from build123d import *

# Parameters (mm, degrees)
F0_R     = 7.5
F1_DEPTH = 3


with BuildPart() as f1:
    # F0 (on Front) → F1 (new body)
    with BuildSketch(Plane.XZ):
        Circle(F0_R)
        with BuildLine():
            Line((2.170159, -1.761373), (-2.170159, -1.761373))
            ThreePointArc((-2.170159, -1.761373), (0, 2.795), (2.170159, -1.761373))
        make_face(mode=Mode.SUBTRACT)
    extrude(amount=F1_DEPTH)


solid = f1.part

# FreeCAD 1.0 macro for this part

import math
import FreeCAD as App
import Part
import Sketcher

doc = App.newDocument("Part")
body = doc.addObject("PartDesign::Body", "Body")

# Sketch on XZ plane
sketch1 = body.newObject("Sketcher::SketchObject", "Sketch")
sketch1.AttachmentSupport = (doc.getObject("XZ_Plane"), [""])
sketch1.MapMode = "FlatFace"
sketch1.addGeometry(Part.Circle(App.Vector(0, 0, 0), App.Vector(0, 0, 1), 7.5), False)
sketch1.addGeometry(Part.ArcOfCircle(Part.Circle(App.Vector(0, 0, 0), App.Vector(0, 0, 1), 2.8), math.radians(-39), math.radians(219)), False)
sketch1.addGeometry(Part.LineSegment(App.Vector(2.2, -1.8, 0), App.Vector(-2.2, -1.8, 0)), False)
sketch1.addConstraint(Sketcher.Constraint("Coincident", 1, 1, 2, 1))
sketch1.addConstraint(Sketcher.Constraint("Coincident", 2, 2, 1, 2))
sketch1.addConstraint(Sketcher.Constraint("Horizontal", 2))
sketch1.addConstraint(Sketcher.Constraint("Coincident", 0, 3, -1, 1))
sketch1.addConstraint(Sketcher.Constraint("Coincident", 1, 3, -1, 1))
sketch1.addConstraint(Sketcher.Constraint("Diameter", 0, 15.0))
sketch1.addConstraint(Sketcher.Constraint("Radius", 1, 2.795))
sketch1.addConstraint(Sketcher.Constraint("DistanceX", 2, 2, 2, 1, 4.340318))
pad1 = body.newObject("PartDesign::Pad", "Pad")
pad1.Profile = sketch1
pad1.Length = 3

doc.recompute()
